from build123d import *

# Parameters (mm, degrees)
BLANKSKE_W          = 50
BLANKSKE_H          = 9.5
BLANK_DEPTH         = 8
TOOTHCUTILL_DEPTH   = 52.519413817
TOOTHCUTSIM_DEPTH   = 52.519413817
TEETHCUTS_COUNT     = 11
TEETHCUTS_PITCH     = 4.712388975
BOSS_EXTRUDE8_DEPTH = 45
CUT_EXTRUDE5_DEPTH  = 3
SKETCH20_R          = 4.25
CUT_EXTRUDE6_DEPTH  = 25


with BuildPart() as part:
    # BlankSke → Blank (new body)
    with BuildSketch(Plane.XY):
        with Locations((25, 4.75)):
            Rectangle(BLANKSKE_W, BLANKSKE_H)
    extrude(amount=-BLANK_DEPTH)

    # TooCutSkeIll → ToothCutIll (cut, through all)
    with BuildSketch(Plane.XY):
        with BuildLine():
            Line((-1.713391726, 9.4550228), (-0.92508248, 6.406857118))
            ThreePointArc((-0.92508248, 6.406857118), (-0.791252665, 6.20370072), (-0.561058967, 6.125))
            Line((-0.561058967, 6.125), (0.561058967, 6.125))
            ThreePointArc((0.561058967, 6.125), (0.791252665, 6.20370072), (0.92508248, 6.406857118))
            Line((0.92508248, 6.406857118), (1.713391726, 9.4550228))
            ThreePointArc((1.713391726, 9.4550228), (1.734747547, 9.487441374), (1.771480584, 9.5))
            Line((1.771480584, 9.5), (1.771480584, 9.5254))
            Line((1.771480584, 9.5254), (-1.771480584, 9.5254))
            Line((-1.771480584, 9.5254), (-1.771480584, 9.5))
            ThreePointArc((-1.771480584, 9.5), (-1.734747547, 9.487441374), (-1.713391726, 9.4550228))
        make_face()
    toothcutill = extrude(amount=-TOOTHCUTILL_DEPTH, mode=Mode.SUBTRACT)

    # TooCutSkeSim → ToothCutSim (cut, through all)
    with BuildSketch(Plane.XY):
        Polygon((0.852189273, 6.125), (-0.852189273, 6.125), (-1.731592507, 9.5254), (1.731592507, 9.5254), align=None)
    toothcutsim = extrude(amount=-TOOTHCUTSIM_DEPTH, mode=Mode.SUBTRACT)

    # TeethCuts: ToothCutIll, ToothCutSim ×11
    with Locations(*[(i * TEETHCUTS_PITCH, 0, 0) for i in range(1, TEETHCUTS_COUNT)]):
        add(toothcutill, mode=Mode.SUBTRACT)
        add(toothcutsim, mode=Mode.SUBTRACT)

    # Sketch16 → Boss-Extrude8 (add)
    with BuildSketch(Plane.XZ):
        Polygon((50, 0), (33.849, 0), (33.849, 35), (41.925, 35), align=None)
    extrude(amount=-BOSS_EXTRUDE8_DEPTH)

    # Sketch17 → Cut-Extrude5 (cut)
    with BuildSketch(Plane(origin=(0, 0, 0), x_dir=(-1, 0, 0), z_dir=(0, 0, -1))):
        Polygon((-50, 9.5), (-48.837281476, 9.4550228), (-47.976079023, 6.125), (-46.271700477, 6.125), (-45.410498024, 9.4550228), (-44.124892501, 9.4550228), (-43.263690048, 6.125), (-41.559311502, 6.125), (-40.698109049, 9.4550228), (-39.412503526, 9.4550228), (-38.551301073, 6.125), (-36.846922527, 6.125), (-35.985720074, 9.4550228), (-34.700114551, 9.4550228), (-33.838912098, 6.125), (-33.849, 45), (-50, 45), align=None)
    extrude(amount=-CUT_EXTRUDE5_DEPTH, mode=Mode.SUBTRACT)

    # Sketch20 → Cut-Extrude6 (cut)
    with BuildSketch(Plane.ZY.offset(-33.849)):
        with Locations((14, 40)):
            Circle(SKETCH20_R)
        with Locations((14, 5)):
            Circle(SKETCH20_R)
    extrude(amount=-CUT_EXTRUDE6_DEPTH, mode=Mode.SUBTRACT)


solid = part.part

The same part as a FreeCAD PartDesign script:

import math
import FreeCAD as App
import Part
import Sketcher
from FreeCAD import Vector
Q = App.Units.Quantity

doc = App.newDocument("Part")
body = doc.addObject("PartDesign::Body", "Body")

# Sketch on XY plane
sketch1 = body.newObject("Sketcher::SketchObject", "Sketch")
sketch1.AttachmentSupport = (doc.getObject("XY_Plane"), [""])
sketch1.MapMode = "FlatFace"
sketch1.addGeometry([
    Part.LineSegment(Vector(0, 9.5, 0), Vector(0, 0, 0)),
    Part.LineSegment(Vector(0, 0, 0), Vector(50, 0, 0)),
    Part.LineSegment(Vector(50, 0, 0), Vector(50, 9.5, 0)),
    Part.LineSegment(Vector(50, 9.5, 0), Vector(0, 9.5, 0)),
], False)
sketch1.addConstraint([
    Sketcher.Constraint("Coincident", 0, 2, 1, 1),
    Sketcher.Constraint("Coincident", 1, 2, 2, 1),
    Sketcher.Constraint("Coincident", 2, 2, 3, 1),
    Sketcher.Constraint("Coincident", 3, 2, 0, 1),
    Sketcher.Constraint("Vertical", 0),
    Sketcher.Constraint("Horizontal", 1),
    Sketcher.Constraint("Vertical", 2),
    Sketcher.Constraint("Horizontal", 3),
    Sketcher.Constraint("Coincident", 0, 2, -1, 1),
    Sketcher.Constraint("DistanceX", 1, 1, 1, 2, 50.0),
    Sketcher.Constraint("DistanceY", 0, 2, 0, 1, 9.5),
])
pad1 = body.newObject("PartDesign::Pad", "Pad")
pad1.Profile = sketch1
pad1.Length = 8
pad1.Reversed = True

# Sketch on XY plane
sketch2 = body.newObject("Sketcher::SketchObject", "Sketch001")
sketch2.AttachmentSupport = (doc.getObject("XY_Plane"), [""])
sketch2.MapMode = "FlatFace"
sketch2.addGeometry([
    Part.LineSegment(Vector(-1.713392, 9.455023, 0), Vector(-0.925082, 6.406857, 0)),  # 0
    Part.ArcOfCircle(Part.Circle(Vector(-0.561059, 6.501, 0), Vector(0, 0, 1), 0.376), math.radians(-165.5), math.radians(-90)),  # 1
    Part.LineSegment(Vector(-0.561059, 6.125, 0), Vector(0.561059, 6.125, 0)),  # 2
    Part.ArcOfCircle(Part.Circle(Vector(0.561059, 6.501, 0), Vector(0, 0, 1), 0.376), math.radians(-90), math.radians(-14.5)),  # 3
    Part.LineSegment(Vector(0.925082, 6.406857, 0), Vector(1.713392, 9.455023, 0)),  # 4
    Part.ArcOfCircle(Part.Circle(Vector(1.771481, 9.44, 0), Vector(0, 0, 1), 0.06), math.radians(90), math.radians(165.5)),  # 5
    Part.LineSegment(Vector(1.771481, 9.5, 0), Vector(1.771481, 9.5254, 0)),  # 6
    Part.LineSegment(Vector(1.771481, 9.5254, 0), Vector(-1.771481, 9.5254, 0)),  # 7
    Part.LineSegment(Vector(-1.771481, 9.5254, 0), Vector(-1.771481, 9.5, 0)),  # 8
    Part.ArcOfCircle(Part.Circle(Vector(-1.771481, 9.44, 0), Vector(0, 0, 1), 0.06), math.radians(14.5), math.radians(90)),  # 9
], False)
sketch2.addConstraint([
    Sketcher.Constraint("Tangent", 0, 2, 1, 1),
    Sketcher.Constraint("Tangent", 1, 2, 2, 1),
    Sketcher.Constraint("Tangent", 2, 2, 3, 1),
    Sketcher.Constraint("Tangent", 3, 2, 4, 1),
    Sketcher.Constraint("Tangent", 4, 2, 5, 2),
    Sketcher.Constraint("Coincident", 5, 1, 6, 1),
    Sketcher.Constraint("Coincident", 6, 2, 7, 1),
    Sketcher.Constraint("Coincident", 7, 2, 8, 1),
    Sketcher.Constraint("Coincident", 8, 2, 9, 2),
    Sketcher.Constraint("Tangent", 9, 1, 0, 1),
    Sketcher.Constraint("Horizontal", 2),
    Sketcher.Constraint("Vertical", 6),
    Sketcher.Constraint("Horizontal", 7),
    Sketcher.Constraint("Vertical", 8),
    Sketcher.Constraint("Equal", 1, 3),
    Sketcher.Constraint("Equal", 5, 9),
    Sketcher.Constraint("Symmetric", 5, 3, 9, 3, -2),
    Sketcher.Constraint("Horizontal", 0, 2, 3, 2),
    Sketcher.Constraint("Vertical", 9, 3, 7, 2),
    Sketcher.Constraint("Radius", 5, 0.06),
    Sketcher.Constraint("Angle", 0, Q("-75.5 deg")),
    Sketcher.Constraint("Radius", 1, 0.376),
    Sketcher.Constraint("DistanceY", -1, 1, 5, 1, 9.5),
    Sketcher.Constraint("DistanceY", 6, 1, 6, 2, 0.0254),
    Sketcher.Constraint("DistanceY", -1, 1, 1, 3, 6.501),
    Sketcher.Constraint("DistanceX", 7, 2, 7, 1, 3.542961),
    Sketcher.Constraint("DistanceX", 3, 2, 5, 1, 0.846398),
])
pocket1 = body.newObject("PartDesign::Pocket", "Pocket")
pocket1.Profile = sketch2
pocket1.Type = "ThroughAll"

# Sketch on XY plane
sketch3 = body.newObject("Sketcher::SketchObject", "Sketch002")
sketch3.AttachmentSupport = (doc.getObject("XY_Plane"), [""])
sketch3.MapMode = "FlatFace"
sketch3.addGeometry([
    Part.LineSegment(Vector(-0.852189, 6.125, 0), Vector(0.852189, 6.125, 0)),
    Part.LineSegment(Vector(0.852189, 6.125, 0), Vector(1.731593, 9.5254, 0)),
    Part.LineSegment(Vector(1.731593, 9.5254, 0), Vector(-1.731593, 9.5254, 0)),
    Part.LineSegment(Vector(-1.731593, 9.5254, 0), Vector(-0.852189, 6.125, 0)),
], False)
sketch3.addConstraint([
    Sketcher.Constraint("Coincident", 0, 2, 1, 1),
    Sketcher.Constraint("Coincident", 1, 2, 2, 1),
    Sketcher.Constraint("Coincident", 2, 2, 3, 1),
    Sketcher.Constraint("Coincident", 3, 2, 0, 1),
    Sketcher.Constraint("Horizontal", 0),
    Sketcher.Constraint("Horizontal", 2),
    Sketcher.Constraint("Equal", 1, 3),
    Sketcher.Constraint("Angle", 1, Q("75.5 deg")),
    Sketcher.Constraint("DistanceY", -1, 1, 0, 2, 6.125),
    Sketcher.Constraint("DistanceX", 0, 1, 0, 2, 1.704379),
    Sketcher.Constraint("DistanceY", -1, 1, 1, 2, 9.5254),
    Sketcher.Constraint("DistanceX", -1, 1, 0, 2, 0.852189),
])
pocket2 = body.newObject("PartDesign::Pocket", "Pocket001")
pocket2.Profile = sketch3
pocket2.Type = "ThroughAll"
doc.recompute()

linearpattern = body.newObject("PartDesign::LinearPattern", "LinearPattern")
linearpattern.Originals = [pocket1, pocket2]
linearpattern.Direction = (doc.getObject("X_Axis"), [""])
linearpattern.Mode = "offset"
linearpattern.Offset = 4.712389
linearpattern.Occurrences = 11
body.Tip = linearpattern

# Sketch on XZ plane
sketch4 = body.newObject("Sketcher::SketchObject", "Sketch003")
sketch4.AttachmentSupport = (doc.getObject("XZ_Plane"), [""])
sketch4.MapMode = "FlatFace"
sketch4.addGeometry([
    Part.LineSegment(Vector(33.849, 0, 0), Vector(50, 0, 0)),
    Part.LineSegment(Vector(50, 0, 0), Vector(41.925, 35, 0)),
    Part.LineSegment(Vector(41.925, 35, 0), Vector(33.849, 35, 0)),
    Part.LineSegment(Vector(33.849, 35, 0), Vector(33.849, 0, 0)),
], False)
sketch4.addConstraint([
    Sketcher.Constraint("Coincident", 0, 2, 1, 1),
    Sketcher.Constraint("Coincident", 1, 2, 2, 1),
    Sketcher.Constraint("Coincident", 2, 2, 3, 1),
    Sketcher.Constraint("Coincident", 3, 2, 0, 1),
    Sketcher.Constraint("Horizontal", 0),
    Sketcher.Constraint("Horizontal", 2),
    Sketcher.Constraint("Vertical", 3),
    Sketcher.Constraint("PointOnObject", 0, 2, -1),
    Sketcher.Constraint("DistanceY", 3, 2, 3, 1, 35.0),
    Sketcher.Constraint("DistanceX", -1, 1, 0, 2, 50.0),
    Sketcher.Constraint("DistanceX", 0, 1, 0, 2, 16.151),
    Sketcher.Constraint("DistanceX", 2, 2, 2, 1, 8.076),
])
pad2 = body.newObject("PartDesign::Pad", "Pad001")
pad2.Profile = sketch4
pad2.Length = 45
pad2.Reversed = True

# Sketch on XY plane
sketch5 = body.newObject("Sketcher::SketchObject", "Sketch004")
sketch5.AttachmentSupport = (doc.getObject("XY_Plane"), [""])
sketch5.MapMode = "FlatFace"
sketch5.addGeometry([
    Part.LineSegment(Vector(50, 9.5, 0), Vector(48.837281, 9.455023, 0)),  # 0
    Part.LineSegment(Vector(48.837281, 9.455023, 0), Vector(47.976079, 6.125, 0)),  # 1
    Part.LineSegment(Vector(47.976079, 6.125, 0), Vector(46.2717, 6.125, 0)),  # 2
    Part.LineSegment(Vector(46.2717, 6.125, 0), Vector(45.410498, 9.455023, 0)),  # 3
    Part.LineSegment(Vector(45.410498, 9.455023, 0), Vector(44.124893, 9.455023, 0)),  # 4
    Part.LineSegment(Vector(44.124893, 9.455023, 0), Vector(43.26369, 6.125, 0)),  # 5
    Part.LineSegment(Vector(43.26369, 6.125, 0), Vector(41.559312, 6.125, 0)),  # 6
    Part.LineSegment(Vector(41.559312, 6.125, 0), Vector(40.698109, 9.455023, 0)),  # 7
    Part.LineSegment(Vector(40.698109, 9.455023, 0), Vector(39.412504, 9.455023, 0)),  # 8
    Part.LineSegment(Vector(39.412504, 9.455023, 0), Vector(38.551301, 6.125, 0)),  # 9
    Part.LineSegment(Vector(38.551301, 6.125, 0), Vector(36.846923, 6.125, 0)),  # 10
    Part.LineSegment(Vector(36.846923, 6.125, 0), Vector(35.98572, 9.455023, 0)),  # 11
    Part.LineSegment(Vector(35.98572, 9.455023, 0), Vector(34.700115, 9.455023, 0)),  # 12
    Part.LineSegment(Vector(34.700115, 9.455023, 0), Vector(33.838912, 6.125, 0)),  # 13
    Part.LineSegment(Vector(33.838912, 6.125, 0), Vector(33.849, 45, 0)),  # 14
    Part.LineSegment(Vector(33.849, 45, 0), Vector(50, 45, 0)),  # 15
    Part.LineSegment(Vector(50, 45, 0), Vector(50, 9.5, 0)),  # 16
], False)
sketch5.addConstraint([
    Sketcher.Constraint("Coincident", 0, 2, 1, 1),
    Sketcher.Constraint("Coincident", 1, 2, 2, 1),
    Sketcher.Constraint("Coincident", 2, 2, 3, 1),
    Sketcher.Constraint("Coincident", 3, 2, 4, 1),
    Sketcher.Constraint("Coincident", 4, 2, 5, 1),
    Sketcher.Constraint("Coincident", 5, 2, 6, 1),
    Sketcher.Constraint("Coincident", 6, 2, 7, 1),
    Sketcher.Constraint("Coincident", 7, 2, 8, 1),
    Sketcher.Constraint("Coincident", 8, 2, 9, 1),
    Sketcher.Constraint("Coincident", 9, 2, 10, 1),
    Sketcher.Constraint("Coincident", 10, 2, 11, 1),
    Sketcher.Constraint("Coincident", 11, 2, 12, 1),
    Sketcher.Constraint("Coincident", 12, 2, 13, 1),
    Sketcher.Constraint("Coincident", 13, 2, 14, 1),
    Sketcher.Constraint("Coincident", 14, 2, 15, 1),
    Sketcher.Constraint("Coincident", 15, 2, 16, 1),
    Sketcher.Constraint("Coincident", 16, 2, 0, 1),
    Sketcher.Constraint("Horizontal", 2),
    Sketcher.Constraint("Horizontal", 4),
    Sketcher.Constraint("Horizontal", 6),
    Sketcher.Constraint("Horizontal", 8),
    Sketcher.Constraint("Horizontal", 10),
    Sketcher.Constraint("Horizontal", 12),
    Sketcher.Constraint("Horizontal", 15),
    Sketcher.Constraint("Vertical", 16),
    Sketcher.Constraint("Parallel", 1, 5),
    Sketcher.Constraint("Parallel", 3, 7),
    Sketcher.Constraint("Parallel", 5, 9),
    Sketcher.Constraint("Parallel", 7, 11),
    Sketcher.Constraint("Parallel", 9, 13),
    Sketcher.Constraint("Horizontal", 0, 2, 3, 2),
    Sketcher.Constraint("Horizontal", 2, 2, 5, 2),
    Sketcher.Constraint("Horizontal", 4, 2, 7, 2),
    Sketcher.Constraint("Horizontal", 6, 2, 9, 2),
    Sketcher.Constraint("Horizontal", 8, 2, 11, 2),
    Sketcher.Constraint("Horizontal", 10, 2, 13, 2),
    Sketcher.Constraint("Equal", 2, 6),
    Sketcher.Constraint("Equal", 4, 8),
    Sketcher.Constraint("Equal", 6, 10),
    Sketcher.Constraint("Equal", 8, 12),
    Sketcher.Constraint("Equal", 1, 3),
    Sketcher.Constraint("DistanceY", 16, 2, 16, 1, 35.5),
    Sketcher.Constraint("DistanceY", -1, 1, 14, 2, 45.0),
    Sketcher.Constraint("DistanceX", -1, 1, 15, 2, 50.0),
    Sketcher.Constraint("Angle", 1, Q("-104.5 deg")),
    Sketcher.Constraint("DistanceX", 15, 1, 15, 2, 16.151),
    Sketcher.Constraint("Distance", 14, 38.875001),
    Sketcher.Constraint("DistanceX", 2, 2, 2, 1, 1.704379),
    Sketcher.Constraint("DistanceX", -1, 1, 2, 2, 46.2717),
    Sketcher.Constraint("DistanceX", -1, 1, 3, 2, 45.410498),
    Sketcher.Constraint("DistanceX", -1, 1, 9, 2, 38.551301),
])
pocket3 = body.newObject("PartDesign::Pocket", "Pocket002")
pocket3.Profile = sketch5
pocket3.Length = 3
pocket3.Reversed = True

# Sketch on YZ plane
sketch6 = body.newObject("Sketcher::SketchObject", "Sketch005")
sketch6.AttachmentSupport = (doc.getObject("YZ_Plane"), [""])
sketch6.MapMode = "FlatFace"
sketch6.AttachmentOffset = App.Placement(Vector(0, 0, 33.849), App.Rotation())
sketch6.addGeometry([
    Part.Circle(Vector(40, 14, 0), Vector(0, 0, 1), 4.25),
    Part.Circle(Vector(5, 14, 0), Vector(0, 0, 1), 4.25),
], False)
sketch6.addConstraint([
    Sketcher.Constraint("Equal", 0, 1),
    Sketcher.Constraint("Horizontal", 0, 3, 1, 3),
    Sketcher.Constraint("Diameter", 0, 8.5),
    Sketcher.Constraint("DistanceX", -1, 1, 0, 3, 40.0),
    Sketcher.Constraint("DistanceY", -1, 1, 0, 3, 14.0),
    Sketcher.Constraint("DistanceX", -1, 1, 1, 3, 5.0),
])
pocket4 = body.newObject("PartDesign::Pocket", "Pocket003")
pocket4.Profile = sketch6
pocket4.Length = 25
pocket4.Reversed = True

doc.recompute()
